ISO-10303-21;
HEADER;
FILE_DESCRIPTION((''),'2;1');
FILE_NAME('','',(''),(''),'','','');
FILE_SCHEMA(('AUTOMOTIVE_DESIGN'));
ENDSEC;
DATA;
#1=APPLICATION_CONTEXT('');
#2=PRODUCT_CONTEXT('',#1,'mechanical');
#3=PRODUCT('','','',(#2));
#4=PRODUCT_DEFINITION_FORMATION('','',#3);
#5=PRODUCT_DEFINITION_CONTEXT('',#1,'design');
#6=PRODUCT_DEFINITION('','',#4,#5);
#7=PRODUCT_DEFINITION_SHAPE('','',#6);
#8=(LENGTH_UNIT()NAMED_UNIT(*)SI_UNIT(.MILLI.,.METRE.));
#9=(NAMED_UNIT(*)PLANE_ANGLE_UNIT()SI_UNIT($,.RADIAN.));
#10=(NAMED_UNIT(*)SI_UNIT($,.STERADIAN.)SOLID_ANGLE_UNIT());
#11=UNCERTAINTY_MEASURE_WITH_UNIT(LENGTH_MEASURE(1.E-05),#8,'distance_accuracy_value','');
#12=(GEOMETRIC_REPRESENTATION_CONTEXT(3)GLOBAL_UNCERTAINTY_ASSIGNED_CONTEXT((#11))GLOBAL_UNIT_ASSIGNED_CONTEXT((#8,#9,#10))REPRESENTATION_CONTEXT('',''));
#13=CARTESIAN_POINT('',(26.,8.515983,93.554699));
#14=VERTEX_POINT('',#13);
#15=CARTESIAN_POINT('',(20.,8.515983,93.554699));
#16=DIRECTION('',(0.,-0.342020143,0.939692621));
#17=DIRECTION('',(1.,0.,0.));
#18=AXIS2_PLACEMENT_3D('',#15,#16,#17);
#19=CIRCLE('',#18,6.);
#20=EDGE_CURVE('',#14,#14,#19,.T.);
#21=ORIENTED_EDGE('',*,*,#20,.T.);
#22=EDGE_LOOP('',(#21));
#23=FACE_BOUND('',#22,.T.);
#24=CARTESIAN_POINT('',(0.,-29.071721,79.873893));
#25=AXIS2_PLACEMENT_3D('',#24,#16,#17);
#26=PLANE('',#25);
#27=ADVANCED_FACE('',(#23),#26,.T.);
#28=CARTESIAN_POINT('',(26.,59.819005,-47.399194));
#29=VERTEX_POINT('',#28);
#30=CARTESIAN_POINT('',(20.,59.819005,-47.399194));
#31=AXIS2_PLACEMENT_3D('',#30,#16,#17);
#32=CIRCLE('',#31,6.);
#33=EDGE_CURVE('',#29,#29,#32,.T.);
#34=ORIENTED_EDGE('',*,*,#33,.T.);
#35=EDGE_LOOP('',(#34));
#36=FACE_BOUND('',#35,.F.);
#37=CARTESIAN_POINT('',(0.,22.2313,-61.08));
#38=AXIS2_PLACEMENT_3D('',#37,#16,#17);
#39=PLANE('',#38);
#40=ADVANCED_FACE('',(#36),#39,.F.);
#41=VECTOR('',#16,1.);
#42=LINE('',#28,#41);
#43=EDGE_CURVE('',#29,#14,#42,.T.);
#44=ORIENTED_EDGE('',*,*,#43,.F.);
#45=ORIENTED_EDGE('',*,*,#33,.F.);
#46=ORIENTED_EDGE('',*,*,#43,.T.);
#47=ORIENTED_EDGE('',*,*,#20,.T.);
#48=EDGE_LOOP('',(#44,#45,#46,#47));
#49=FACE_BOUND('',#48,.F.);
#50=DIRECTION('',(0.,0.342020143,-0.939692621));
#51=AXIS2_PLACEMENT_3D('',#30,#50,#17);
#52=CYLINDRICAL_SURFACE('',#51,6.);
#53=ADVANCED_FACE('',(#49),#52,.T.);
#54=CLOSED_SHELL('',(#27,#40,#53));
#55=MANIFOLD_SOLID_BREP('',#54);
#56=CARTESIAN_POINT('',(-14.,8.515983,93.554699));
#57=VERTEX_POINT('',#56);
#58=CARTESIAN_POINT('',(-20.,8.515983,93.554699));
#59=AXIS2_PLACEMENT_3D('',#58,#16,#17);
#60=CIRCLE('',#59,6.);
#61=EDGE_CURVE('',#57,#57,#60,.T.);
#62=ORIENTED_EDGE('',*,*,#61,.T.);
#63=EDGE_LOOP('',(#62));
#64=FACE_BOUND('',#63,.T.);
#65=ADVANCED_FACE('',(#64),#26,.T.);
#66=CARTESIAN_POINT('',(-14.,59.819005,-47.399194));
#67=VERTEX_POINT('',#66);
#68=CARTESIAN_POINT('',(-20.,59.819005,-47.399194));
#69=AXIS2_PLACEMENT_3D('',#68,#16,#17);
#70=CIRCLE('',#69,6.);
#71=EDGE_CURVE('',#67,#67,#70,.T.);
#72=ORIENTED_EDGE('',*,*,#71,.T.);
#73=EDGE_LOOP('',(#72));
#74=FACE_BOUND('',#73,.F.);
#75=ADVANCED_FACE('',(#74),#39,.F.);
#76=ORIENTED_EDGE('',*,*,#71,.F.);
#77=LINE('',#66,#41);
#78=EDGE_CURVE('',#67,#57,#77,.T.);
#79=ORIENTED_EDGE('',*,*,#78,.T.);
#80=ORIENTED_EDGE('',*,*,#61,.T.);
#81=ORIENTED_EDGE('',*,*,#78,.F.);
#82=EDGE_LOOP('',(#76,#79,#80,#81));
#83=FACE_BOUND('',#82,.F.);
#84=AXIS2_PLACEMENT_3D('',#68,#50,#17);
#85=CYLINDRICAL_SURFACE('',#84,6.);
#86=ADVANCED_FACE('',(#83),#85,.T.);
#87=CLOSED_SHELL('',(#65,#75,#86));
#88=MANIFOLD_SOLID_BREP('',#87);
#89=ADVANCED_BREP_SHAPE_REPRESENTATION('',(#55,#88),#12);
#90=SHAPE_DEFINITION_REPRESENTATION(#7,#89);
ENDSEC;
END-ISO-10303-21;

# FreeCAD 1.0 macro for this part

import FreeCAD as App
import Part
import Sketcher
from FreeCAD import Vector
Q = App.Units.Quantity

doc = App.newDocument("Part")
body = doc.addObject("PartDesign::Body", "Body")
body.AllowCompound = True

sketch1 = body.newObject("Sketcher::SketchObject", "Sketch")
sketch1.Placement = App.Placement(Vector(0, 22.2313, -61.08), App.Rotation(Vector(1, 0, 0), Vector(0, 0.939692621, 0.342020143), Vector(0, -0.342020143, 0.939692621), "ZXY"))
sketch1.addGeometry([
    Part.Circle(Vector(20, 40, 0), Vector(0, 0, 1), 6),
    Part.Circle(Vector(-20, 40, 0), Vector(0, 0, 1), 6),
], False)
sketch1.addConstraint([
    Sketcher.Constraint("Equal", 0, 1),
    Sketcher.Constraint("Symmetric", 0, 3, 1, 3, -2),
    Sketcher.Constraint("Diameter", 0, Q("12 mm")),
    Sketcher.Constraint("DistanceX", -1, 1, 0, 3, Q("20 mm")),
    Sketcher.Constraint("DistanceY", -1, 1, 0, 3, Q("40 mm")),
])
pad1 = body.newObject("PartDesign::Pad", "Pad")
pad1.Profile = sketch1
pad1.Length = 150

doc.recompute()
